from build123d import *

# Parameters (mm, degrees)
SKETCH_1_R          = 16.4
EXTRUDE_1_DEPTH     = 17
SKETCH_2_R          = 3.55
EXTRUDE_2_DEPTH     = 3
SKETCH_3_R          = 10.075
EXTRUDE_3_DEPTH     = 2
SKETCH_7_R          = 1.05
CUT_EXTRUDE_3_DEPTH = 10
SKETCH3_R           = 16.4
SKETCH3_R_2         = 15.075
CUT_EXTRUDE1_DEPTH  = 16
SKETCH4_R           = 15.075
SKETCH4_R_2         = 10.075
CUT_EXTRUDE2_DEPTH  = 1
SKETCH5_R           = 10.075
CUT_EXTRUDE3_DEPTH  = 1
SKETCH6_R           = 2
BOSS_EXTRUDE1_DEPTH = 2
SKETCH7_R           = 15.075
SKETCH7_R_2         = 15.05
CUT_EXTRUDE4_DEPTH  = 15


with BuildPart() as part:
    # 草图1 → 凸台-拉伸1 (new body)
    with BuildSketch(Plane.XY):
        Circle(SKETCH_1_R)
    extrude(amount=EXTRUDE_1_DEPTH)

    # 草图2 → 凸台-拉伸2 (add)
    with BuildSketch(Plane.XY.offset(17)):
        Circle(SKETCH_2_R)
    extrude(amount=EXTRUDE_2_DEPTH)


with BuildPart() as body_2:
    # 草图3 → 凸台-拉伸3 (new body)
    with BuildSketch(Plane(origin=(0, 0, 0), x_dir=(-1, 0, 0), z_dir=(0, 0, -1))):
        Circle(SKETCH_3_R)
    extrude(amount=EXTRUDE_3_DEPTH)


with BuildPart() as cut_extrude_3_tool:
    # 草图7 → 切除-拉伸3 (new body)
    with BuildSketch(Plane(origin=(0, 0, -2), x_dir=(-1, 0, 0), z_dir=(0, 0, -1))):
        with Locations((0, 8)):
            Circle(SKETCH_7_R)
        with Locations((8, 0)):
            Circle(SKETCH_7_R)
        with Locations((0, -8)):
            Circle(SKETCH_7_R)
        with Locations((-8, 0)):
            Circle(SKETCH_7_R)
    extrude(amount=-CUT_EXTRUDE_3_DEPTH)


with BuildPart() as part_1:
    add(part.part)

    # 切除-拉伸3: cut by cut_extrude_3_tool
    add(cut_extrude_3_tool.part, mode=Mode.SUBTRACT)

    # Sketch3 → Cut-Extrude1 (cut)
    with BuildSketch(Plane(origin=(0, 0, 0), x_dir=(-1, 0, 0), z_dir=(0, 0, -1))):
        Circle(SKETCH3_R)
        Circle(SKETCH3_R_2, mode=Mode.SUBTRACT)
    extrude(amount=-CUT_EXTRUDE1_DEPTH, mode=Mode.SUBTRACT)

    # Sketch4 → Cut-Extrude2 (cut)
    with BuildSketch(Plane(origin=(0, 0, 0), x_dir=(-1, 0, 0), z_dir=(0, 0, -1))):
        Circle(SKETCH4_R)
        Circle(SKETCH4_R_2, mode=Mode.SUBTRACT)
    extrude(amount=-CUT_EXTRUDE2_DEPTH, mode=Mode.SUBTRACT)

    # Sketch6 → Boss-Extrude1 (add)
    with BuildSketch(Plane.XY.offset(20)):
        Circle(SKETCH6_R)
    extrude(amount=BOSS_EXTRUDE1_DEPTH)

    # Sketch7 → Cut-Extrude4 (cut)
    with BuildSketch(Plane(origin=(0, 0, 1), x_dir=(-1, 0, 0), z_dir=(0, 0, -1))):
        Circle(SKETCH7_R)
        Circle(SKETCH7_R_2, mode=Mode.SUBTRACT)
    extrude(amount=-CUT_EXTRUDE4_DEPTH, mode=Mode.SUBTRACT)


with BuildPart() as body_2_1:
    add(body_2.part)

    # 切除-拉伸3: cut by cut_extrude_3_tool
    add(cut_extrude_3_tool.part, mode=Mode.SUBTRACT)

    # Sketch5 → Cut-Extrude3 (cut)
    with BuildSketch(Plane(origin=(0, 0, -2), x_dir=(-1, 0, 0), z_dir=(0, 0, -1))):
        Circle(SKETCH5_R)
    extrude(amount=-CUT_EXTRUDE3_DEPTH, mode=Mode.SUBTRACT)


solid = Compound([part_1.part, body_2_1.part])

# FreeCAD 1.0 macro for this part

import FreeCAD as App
import Part
import Sketcher

V = App.Vector

doc = App.newDocument("Part")
body = doc.addObject("PartDesign::Body", "Body")

# Sketch on XY plane
sketch1 = body.newObject("Sketcher::SketchObject", "Sketch")
sketch1.AttachmentSupport = (doc.getObject("XY_Plane"), [""])
sketch1.MapMode = "FlatFace"
sketch1.addGeometry(Part.Circle(V(0, 0, 0), V(0, 0, 1), 16), False)
sketch1.addConstraint([
    Sketcher.Constraint("Coincident", 0, 3, -1, 1),
    Sketcher.Constraint("Diameter", 0, 32.8),
])
pad1 = body.newObject("PartDesign::Pad", "Pad")
pad1.Profile = sketch1
pad1.Length = 17

# Sketch on XY plane
sketch2 = body.newObject("Sketcher::SketchObject", "Sketch001")
sketch2.AttachmentSupport = (doc.getObject("XY_Plane"), [""])
sketch2.MapMode = "FlatFace"
sketch2.AttachmentOffset = App.Placement(V(0, 0, 17), App.Rotation())
sketch2.addGeometry(Part.Circle(V(0, 0, 0), V(0, 0, 1), 3.5), False)
sketch2.addConstraint([
    Sketcher.Constraint("Coincident", 0, 3, -1, 1),
    Sketcher.Constraint("Diameter", 0, 7.1),
])
pad2 = body.newObject("PartDesign::Pad", "Pad001")
pad2.Profile = sketch2
pad2.Length = 3
body2 = doc.addObject("PartDesign::Body", "Body001")

# Sketch on XY plane
sketch3 = body2.newObject("Sketcher::SketchObject", "Sketch002")
sketch3.AttachmentSupport = (doc.getObject("XY_Plane001"), [""])
sketch3.MapMode = "FlatFace"
sketch3.addGeometry(Part.Circle(V(0, 0, 0), V(0, 0, 1), 10), False)
sketch3.addConstraint([
    Sketcher.Constraint("Coincident", 0, 3, -1, 1),
    Sketcher.Constraint("Diameter", 0, 20.15),
])
pad3 = body2.newObject("PartDesign::Pad", "Pad002")
pad3.Profile = sketch3
pad3.Length = 2
pad3.Reversed = True
body3 = doc.addObject("PartDesign::Body", "Body002")
body3.AllowCompound = True

# Sketch on XY plane
sketch4 = body3.newObject("Sketcher::SketchObject", "Sketch003")
sketch4.AttachmentSupport = (doc.getObject("XY_Plane002"), [""])
sketch4.MapMode = "FlatFace"
sketch4.AttachmentOffset = App.Placement(V(0, 0, -2), App.Rotation())
sketch4.addGeometry([
    Part.Circle(V(0, 8, 0), V(0, 0, 1), 1.1),
    Part.Circle(V(-8, 0, 0), V(0, 0, 1), 1.1),
    Part.Circle(V(0, -8, 0), V(0, 0, 1), 1.1),
    Part.Circle(V(8, 0, 0), V(0, 0, 1), 1.1),
], False)
sketch4.addConstraint([
    Sketcher.Constraint("Equal", 0, 1),
    Sketcher.Constraint("Equal", 1, 2),
    Sketcher.Constraint("Equal", 2, 3),
    Sketcher.Constraint("Symmetric", 0, 3, 2, 3, -1, 1),
    Sketcher.Constraint("Symmetric", 1, 3, 3, 3, -1, 1),
    Sketcher.Constraint("PointOnObject", 0, 3, -2),
    Sketcher.Constraint("PointOnObject", 1, 3, -1),
    Sketcher.Constraint("Diameter", 0, 2.1),
    Sketcher.Constraint("DistanceY", -1, 1, 0, 3, 8.0),
    Sketcher.Constraint("DistanceX", 1, 3, -1, 1, 8.0),
])
pad4 = body3.newObject("PartDesign::Pad", "Pad003")
pad4.Profile = sketch4
pad4.Length = 10
doc.recompute()

body4 = doc.addObject("PartDesign::Body", "Body003")
body4.BaseFeature = body3
boolean = body.newObject("PartDesign::Boolean", "Boolean")
boolean.Type = "Cut"
boolean.addObjects([body4])
doc.recompute()

# Sketch on XY plane
sketch5 = body.newObject("Sketcher::SketchObject", "Sketch004")
sketch5.AttachmentSupport = (doc.getObject("XY_Plane"), [""])
sketch5.MapMode = "FlatFace"
sketch5.addGeometry([
    Part.Circle(V(0, 0, 0), V(0, 0, 1), 16),
    Part.Circle(V(0, 0, 0), V(0, 0, 1), 15),
], False)
sketch5.addConstraint([
    Sketcher.Constraint("Coincident", 0, 3, -1, 1),
    Sketcher.Constraint("Coincident", 1, 3, -1, 1),
    Sketcher.Constraint("Diameter", 0, 32.8),
    Sketcher.Constraint("Diameter", 1, 30.15),
])
pocket1 = body.newObject("PartDesign::Pocket", "Pocket")
pocket1.Profile = sketch5
pocket1.Length = 16
pocket1.Reversed = True

# Sketch on XY plane
sketch6 = body.newObject("Sketcher::SketchObject", "Sketch005")
sketch6.AttachmentSupport = (doc.getObject("XY_Plane"), [""])
sketch6.MapMode = "FlatFace"
sketch6.addGeometry([
    Part.Circle(V(0, 0, 0), V(0, 0, 1), 15),
    Part.Circle(V(0, 0, 0), V(0, 0, 1), 10),
], False)
sketch6.addConstraint([
    Sketcher.Constraint("Coincident", 0, 3, -1, 1),
    Sketcher.Constraint("Coincident", 1, 3, -1, 1),
    Sketcher.Constraint("Diameter", 0, 30.15),
    Sketcher.Constraint("Diameter", 1, 20.15),
])
pocket2 = body.newObject("PartDesign::Pocket", "Pocket001")
pocket2.Profile = sketch6
pocket2.Length = 1
pocket2.Reversed = True

# Sketch on XY plane
sketch7 = body.newObject("Sketcher::SketchObject", "Sketch006")
sketch7.AttachmentSupport = (doc.getObject("XY_Plane"), [""])
sketch7.MapMode = "FlatFace"
sketch7.AttachmentOffset = App.Placement(V(0, 0, 20), App.Rotation())
sketch7.addGeometry(Part.Circle(V(0, 0, 0), V(0, 0, 1), 2), False)
sketch7.addConstraint([
    Sketcher.Constraint("Coincident", 0, 3, -1, 1),
    Sketcher.Constraint("Diameter", 0, 4.0),
])
pad5 = body.newObject("PartDesign::Pad", "Pad004")
pad5.Profile = sketch7
pad5.Length = 2

# Sketch on XY plane
sketch8 = body.newObject("Sketcher::SketchObject", "Sketch007")
sketch8.AttachmentSupport = (doc.getObject("XY_Plane"), [""])
sketch8.MapMode = "FlatFace"
sketch8.AttachmentOffset = App.Placement(V(0, 0, 1), App.Rotation())
sketch8.addGeometry([
    Part.Circle(V(0, 0, 0), V(0, 0, 1), 15),
    Part.Circle(V(0, 0, 0), V(0, 0, 1), 15),
], False)
sketch8.addConstraint([
    Sketcher.Constraint("Coincident", 0, 3, -1, 1),
    Sketcher.Constraint("Coincident", 1, 3, -1, 1),
    Sketcher.Constraint("Diameter", 1, 30.1),
    Sketcher.Constraint("Diameter", 0, 30.15),
])
pocket3 = body.newObject("PartDesign::Pocket", "Pocket002")
pocket3.Profile = sketch8
pocket3.Length = 15
pocket3.Reversed = True
doc.recompute()

boolean2 = body2.newObject("PartDesign::Boolean", "Boolean001")
boolean2.Type = "Cut"
boolean2.addObjects([body3])

# Sketch on XY plane
sketch9 = body2.newObject("Sketcher::SketchObject", "Sketch008")
sketch9.AttachmentSupport = (doc.getObject("XY_Plane001"), [""])
sketch9.MapMode = "FlatFace"
sketch9.AttachmentOffset = App.Placement(V(0, 0, -2), App.Rotation())
sketch9.addGeometry(Part.Circle(V(0, 0, 0), V(0, 0, 1), 10), False)
sketch9.addConstraint([
    Sketcher.Constraint("Coincident", 0, 3, -1, 1),
    Sketcher.Constraint("Diameter", 0, 20.15),
])
pocket4 = body2.newObject("PartDesign::Pocket", "Pocket003")
pocket4.Profile = sketch9
pocket4.Length = 1
pocket4.Reversed = True

doc.recompute()
